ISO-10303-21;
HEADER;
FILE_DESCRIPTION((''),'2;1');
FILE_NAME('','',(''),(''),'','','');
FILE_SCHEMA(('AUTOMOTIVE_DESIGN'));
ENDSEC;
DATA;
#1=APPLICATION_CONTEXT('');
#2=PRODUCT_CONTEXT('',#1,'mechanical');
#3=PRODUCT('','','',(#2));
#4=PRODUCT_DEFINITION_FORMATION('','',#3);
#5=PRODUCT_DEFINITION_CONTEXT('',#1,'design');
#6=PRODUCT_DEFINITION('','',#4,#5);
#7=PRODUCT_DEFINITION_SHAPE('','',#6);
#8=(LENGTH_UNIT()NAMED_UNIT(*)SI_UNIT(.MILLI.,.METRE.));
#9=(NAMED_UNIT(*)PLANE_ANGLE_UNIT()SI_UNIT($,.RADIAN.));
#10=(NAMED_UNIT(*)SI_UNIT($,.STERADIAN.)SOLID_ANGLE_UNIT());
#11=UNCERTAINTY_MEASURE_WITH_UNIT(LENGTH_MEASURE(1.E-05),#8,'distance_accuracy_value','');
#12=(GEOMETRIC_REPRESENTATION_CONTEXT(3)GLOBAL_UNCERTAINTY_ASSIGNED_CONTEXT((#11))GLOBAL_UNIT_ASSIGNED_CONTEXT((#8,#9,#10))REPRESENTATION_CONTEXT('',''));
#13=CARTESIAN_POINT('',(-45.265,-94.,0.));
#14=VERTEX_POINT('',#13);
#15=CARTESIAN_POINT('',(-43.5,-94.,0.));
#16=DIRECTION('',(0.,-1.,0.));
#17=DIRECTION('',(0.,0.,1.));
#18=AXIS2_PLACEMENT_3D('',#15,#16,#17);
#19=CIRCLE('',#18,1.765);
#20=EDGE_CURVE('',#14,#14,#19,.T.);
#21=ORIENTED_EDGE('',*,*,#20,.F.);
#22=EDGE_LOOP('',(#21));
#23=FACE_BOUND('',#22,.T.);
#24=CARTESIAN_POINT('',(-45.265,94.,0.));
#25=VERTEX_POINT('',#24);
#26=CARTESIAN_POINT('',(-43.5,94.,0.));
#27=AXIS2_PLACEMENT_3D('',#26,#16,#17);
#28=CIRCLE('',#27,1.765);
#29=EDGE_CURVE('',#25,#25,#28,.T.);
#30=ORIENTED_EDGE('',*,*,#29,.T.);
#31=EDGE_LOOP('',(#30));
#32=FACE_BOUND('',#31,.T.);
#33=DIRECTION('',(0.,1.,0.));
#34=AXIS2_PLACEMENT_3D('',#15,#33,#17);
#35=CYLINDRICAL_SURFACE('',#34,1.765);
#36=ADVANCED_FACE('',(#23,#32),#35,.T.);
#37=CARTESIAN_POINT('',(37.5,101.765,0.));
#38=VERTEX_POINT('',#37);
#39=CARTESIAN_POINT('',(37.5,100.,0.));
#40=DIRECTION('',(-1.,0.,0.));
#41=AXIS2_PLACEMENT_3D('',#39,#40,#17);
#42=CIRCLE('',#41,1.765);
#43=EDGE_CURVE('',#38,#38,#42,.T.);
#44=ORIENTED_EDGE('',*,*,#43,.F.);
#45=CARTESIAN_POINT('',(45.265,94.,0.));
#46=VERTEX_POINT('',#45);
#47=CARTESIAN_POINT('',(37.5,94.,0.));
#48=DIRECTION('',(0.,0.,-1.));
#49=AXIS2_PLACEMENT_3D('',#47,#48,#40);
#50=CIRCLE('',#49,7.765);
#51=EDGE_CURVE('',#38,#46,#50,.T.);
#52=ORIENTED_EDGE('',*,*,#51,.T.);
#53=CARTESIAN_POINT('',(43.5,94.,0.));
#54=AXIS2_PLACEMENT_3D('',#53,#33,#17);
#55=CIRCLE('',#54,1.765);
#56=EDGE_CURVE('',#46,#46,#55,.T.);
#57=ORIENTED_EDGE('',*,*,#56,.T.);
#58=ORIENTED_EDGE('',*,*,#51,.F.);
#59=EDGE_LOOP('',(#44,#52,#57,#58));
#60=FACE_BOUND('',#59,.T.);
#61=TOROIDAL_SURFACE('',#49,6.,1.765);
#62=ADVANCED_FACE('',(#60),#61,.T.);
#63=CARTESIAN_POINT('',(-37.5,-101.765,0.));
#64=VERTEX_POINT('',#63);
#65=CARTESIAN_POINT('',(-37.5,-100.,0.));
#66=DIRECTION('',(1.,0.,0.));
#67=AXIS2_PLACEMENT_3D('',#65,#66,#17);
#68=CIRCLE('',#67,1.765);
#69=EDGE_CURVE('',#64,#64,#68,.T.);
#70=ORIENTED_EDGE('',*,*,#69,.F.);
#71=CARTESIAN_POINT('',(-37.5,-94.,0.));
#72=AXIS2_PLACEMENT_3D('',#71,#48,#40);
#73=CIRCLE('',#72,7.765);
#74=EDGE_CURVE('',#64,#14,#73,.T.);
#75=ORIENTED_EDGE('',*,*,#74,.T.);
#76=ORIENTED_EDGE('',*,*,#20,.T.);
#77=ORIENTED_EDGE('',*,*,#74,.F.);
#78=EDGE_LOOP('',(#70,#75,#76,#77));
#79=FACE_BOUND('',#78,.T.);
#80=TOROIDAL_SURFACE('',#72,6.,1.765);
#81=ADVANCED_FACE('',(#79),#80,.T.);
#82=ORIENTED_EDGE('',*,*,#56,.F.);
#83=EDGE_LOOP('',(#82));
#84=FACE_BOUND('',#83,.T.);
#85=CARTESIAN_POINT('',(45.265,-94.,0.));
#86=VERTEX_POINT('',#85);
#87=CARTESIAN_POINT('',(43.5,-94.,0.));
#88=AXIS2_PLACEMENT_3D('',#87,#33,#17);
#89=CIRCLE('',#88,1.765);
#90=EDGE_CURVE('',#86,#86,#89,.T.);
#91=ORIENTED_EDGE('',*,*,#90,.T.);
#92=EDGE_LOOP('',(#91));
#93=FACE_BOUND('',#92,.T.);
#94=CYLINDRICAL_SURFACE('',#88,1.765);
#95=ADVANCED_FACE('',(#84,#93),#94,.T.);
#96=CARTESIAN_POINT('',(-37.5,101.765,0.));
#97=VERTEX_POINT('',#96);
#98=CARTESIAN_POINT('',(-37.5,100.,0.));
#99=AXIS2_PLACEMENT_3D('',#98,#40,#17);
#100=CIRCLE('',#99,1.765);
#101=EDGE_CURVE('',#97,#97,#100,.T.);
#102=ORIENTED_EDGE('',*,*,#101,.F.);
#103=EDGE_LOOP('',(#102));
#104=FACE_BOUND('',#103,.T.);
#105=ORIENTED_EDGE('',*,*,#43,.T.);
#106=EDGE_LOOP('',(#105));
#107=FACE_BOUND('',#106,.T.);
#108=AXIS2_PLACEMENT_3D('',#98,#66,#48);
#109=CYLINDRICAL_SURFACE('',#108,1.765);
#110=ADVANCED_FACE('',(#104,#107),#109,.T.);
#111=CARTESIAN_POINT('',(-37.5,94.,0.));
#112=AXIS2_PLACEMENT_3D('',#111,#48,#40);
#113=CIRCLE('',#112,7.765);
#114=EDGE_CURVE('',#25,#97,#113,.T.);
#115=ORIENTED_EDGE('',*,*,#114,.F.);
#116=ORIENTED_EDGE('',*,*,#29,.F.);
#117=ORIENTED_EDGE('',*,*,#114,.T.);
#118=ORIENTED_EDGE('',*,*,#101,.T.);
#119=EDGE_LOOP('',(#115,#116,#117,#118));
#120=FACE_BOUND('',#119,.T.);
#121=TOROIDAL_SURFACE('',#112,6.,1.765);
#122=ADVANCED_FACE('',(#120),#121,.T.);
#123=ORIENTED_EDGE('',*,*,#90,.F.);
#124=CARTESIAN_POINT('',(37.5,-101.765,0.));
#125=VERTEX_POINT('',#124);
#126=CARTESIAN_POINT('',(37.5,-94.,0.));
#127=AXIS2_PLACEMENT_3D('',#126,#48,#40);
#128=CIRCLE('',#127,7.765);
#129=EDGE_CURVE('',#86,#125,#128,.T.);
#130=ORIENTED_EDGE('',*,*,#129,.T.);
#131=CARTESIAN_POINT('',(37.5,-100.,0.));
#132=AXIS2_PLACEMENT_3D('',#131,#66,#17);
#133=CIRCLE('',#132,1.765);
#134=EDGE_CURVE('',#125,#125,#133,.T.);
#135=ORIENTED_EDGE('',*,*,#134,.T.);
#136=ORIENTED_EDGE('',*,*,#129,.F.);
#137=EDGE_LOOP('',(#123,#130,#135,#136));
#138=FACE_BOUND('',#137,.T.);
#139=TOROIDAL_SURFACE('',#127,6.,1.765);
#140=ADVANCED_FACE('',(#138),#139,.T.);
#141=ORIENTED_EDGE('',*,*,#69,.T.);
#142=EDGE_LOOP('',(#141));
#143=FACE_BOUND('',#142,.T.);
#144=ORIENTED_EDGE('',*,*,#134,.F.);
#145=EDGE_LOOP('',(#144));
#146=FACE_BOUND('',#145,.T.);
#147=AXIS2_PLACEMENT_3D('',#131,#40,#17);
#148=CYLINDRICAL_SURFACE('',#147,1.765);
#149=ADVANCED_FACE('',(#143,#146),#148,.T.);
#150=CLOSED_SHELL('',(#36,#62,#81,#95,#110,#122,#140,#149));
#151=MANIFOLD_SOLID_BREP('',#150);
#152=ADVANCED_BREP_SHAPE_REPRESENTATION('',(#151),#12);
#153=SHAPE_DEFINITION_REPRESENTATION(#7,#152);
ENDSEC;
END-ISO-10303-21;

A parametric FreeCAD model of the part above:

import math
import FreeCAD as App
import Part
import Sketcher

doc = App.newDocument("Part")
body = doc.addObject("PartDesign::Body", "Body")

# Sketch on XZ plane
sketch1 = body.newObject("Sketcher::SketchObject", "Sketch")
sketch1.AttachmentSupport = (doc.getObject("XZ_Plane"), [""])
sketch1.MapMode = "FlatFace"
sketch1.addGeometry(Part.Circle(App.Vector(43.5, 0, 0), App.Vector(0, 0, 1), 1.765), False)
sketch1.addConstraint([
    Sketcher.Constraint("PointOnObject", 0, 3, -1),
    Sketcher.Constraint("Diameter", 0, 3.53),
    Sketcher.Constraint("DistanceX", -1, 1, 0, 3, 43.5),
])

# Sketch on XY plane
sketch2 = body.newObject("Sketcher::SketchObject", "Sketch001")
sketch2.AttachmentSupport = (doc.getObject("XY_Plane"), [""])
sketch2.MapMode = "FlatFace"
sketch2.addGeometry([
    Part.LineSegment(App.Vector(-37.5, -100, 0), App.Vector(37.5, -100, 0)),  # 0
    Part.ArcOfCircle(Part.Circle(App.Vector(37.5, -94, 0), App.Vector(0, 0, 1), 6), math.radians(-90), math.radians(0)),  # 1
    Part.LineSegment(App.Vector(43.5, -94, 0), App.Vector(43.5, 94, 0)),  # 2
    Part.ArcOfCircle(Part.Circle(App.Vector(37.5, 94, 0), App.Vector(0, 0, 1), 6), math.radians(0), math.radians(90)),  # 3
    Part.LineSegment(App.Vector(37.5, 100, 0), App.Vector(-37.5, 100, 0)),  # 4
    Part.ArcOfCircle(Part.Circle(App.Vector(-37.5, 94, 0), App.Vector(0, 0, 1), 6), math.radians(90), math.radians(180)),  # 5
    Part.LineSegment(App.Vector(-43.5, 94, 0), App.Vector(-43.5, -94, 0)),  # 6
    Part.ArcOfCircle(Part.Circle(App.Vector(-37.5, -94, 0), App.Vector(0, 0, 1), 6), math.radians(180), math.radians(270)),  # 7
], False)
sketch2.addConstraint([
    Sketcher.Constraint("Tangent", 0, 2, 1, 1),
    Sketcher.Constraint("Tangent", 1, 2, 2, 1),
    Sketcher.Constraint("Tangent", 2, 2, 3, 1),
    Sketcher.Constraint("Tangent", 3, 2, 4, 1),
    Sketcher.Constraint("Tangent", 4, 2, 5, 1),
    Sketcher.Constraint("Tangent", 5, 2, 6, 1),
    Sketcher.Constraint("Tangent", 6, 2, 7, 1),
    Sketcher.Constraint("Tangent", 7, 2, 0, 1),
    Sketcher.Constraint("Horizontal", 0),
    Sketcher.Constraint("Vertical", 2),
    Sketcher.Constraint("Horizontal", 4),
    Sketcher.Constraint("Vertical", 6),
    Sketcher.Constraint("Equal", 1, 3),
    Sketcher.Constraint("Equal", 3, 5),
    Sketcher.Constraint("Equal", 5, 7),
    Sketcher.Constraint("Symmetric", 1, 3, 5, 3, -1, 1),
    Sketcher.Constraint("Radius", 1, 6.0),
    Sketcher.Constraint("DistanceX", 0, 1, 0, 2, 75.0),
    Sketcher.Constraint("DistanceY", 2, 1, 2, 2, 188.0),
])
doc.recompute()

additivepipe = body.newObject("PartDesign::AdditivePipe", "AdditivePipe")
additivepipe.Profile = sketch1
additivepipe.Spine = (sketch2, ["Edge1", "Edge2", "Edge3", "Edge4", "Edge5", "Edge6", "Edge7", "Edge8"])

doc.recompute()
